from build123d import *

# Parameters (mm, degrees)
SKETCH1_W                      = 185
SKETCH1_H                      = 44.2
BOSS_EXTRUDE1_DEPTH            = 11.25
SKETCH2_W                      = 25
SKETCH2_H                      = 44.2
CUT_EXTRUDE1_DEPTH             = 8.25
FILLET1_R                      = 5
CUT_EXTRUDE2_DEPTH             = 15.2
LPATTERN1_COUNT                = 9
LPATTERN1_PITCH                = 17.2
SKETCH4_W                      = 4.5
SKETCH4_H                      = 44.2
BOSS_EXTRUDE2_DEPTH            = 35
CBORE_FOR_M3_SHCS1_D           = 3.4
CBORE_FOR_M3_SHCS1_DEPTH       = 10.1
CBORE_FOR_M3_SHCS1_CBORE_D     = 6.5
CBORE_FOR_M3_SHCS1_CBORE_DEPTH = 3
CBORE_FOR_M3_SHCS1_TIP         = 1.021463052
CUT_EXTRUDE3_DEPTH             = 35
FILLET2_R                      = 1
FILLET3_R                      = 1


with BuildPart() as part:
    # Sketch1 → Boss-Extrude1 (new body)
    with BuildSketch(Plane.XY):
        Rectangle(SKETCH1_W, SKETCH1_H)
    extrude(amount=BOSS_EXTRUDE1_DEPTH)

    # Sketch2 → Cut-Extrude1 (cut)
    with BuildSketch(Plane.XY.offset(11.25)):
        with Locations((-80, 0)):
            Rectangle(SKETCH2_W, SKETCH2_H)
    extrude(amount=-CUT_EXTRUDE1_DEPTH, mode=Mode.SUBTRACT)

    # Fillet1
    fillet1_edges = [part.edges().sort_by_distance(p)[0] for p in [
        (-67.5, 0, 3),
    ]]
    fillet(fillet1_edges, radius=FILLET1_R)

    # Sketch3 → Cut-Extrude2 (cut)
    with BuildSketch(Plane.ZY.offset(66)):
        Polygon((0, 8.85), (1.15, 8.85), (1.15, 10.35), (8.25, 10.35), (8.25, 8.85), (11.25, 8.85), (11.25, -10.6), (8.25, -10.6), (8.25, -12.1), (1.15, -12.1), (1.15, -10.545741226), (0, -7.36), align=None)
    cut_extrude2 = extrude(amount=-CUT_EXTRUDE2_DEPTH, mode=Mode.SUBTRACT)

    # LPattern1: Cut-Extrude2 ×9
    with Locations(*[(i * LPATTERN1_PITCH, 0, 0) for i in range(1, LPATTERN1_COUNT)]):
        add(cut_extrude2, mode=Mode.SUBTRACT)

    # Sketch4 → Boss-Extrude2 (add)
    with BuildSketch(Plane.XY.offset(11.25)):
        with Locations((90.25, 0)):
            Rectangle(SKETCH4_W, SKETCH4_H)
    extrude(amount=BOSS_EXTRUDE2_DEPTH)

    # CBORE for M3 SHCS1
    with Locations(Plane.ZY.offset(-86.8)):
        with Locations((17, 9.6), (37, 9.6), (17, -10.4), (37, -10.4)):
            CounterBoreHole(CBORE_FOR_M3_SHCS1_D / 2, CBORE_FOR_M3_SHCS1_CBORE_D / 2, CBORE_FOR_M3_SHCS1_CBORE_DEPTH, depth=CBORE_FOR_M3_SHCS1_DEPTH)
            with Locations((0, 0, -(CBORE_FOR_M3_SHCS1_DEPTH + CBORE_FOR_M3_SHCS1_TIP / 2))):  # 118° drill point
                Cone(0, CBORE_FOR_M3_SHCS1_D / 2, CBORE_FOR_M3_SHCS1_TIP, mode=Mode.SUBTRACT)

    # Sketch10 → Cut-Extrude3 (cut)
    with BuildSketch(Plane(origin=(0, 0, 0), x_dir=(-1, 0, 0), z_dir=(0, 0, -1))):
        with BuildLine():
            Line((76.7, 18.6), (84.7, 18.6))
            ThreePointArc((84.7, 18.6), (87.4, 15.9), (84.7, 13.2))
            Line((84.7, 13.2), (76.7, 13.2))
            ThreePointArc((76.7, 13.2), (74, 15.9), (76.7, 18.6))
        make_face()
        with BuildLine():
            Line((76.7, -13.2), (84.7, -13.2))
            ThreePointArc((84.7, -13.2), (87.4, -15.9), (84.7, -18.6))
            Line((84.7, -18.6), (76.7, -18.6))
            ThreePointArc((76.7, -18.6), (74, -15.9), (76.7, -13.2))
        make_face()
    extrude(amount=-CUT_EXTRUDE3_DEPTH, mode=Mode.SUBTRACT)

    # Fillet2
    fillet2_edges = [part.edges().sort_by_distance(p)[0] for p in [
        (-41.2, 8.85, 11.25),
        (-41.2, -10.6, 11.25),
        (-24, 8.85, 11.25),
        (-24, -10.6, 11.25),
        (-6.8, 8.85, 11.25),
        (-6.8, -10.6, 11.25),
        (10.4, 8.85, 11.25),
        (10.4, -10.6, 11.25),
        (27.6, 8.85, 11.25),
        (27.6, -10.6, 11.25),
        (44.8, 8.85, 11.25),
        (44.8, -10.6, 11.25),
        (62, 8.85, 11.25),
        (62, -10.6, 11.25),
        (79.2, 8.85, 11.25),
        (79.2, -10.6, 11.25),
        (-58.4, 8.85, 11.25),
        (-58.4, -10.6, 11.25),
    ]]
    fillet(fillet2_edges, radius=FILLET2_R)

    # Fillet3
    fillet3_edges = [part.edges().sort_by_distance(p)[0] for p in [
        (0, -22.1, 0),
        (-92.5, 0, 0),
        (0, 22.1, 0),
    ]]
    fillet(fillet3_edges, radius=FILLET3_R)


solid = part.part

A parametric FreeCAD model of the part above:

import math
import FreeCAD as App
import Part
import Sketcher
from FreeCAD import Vector
Q = App.Units.Quantity


def edges_at(feature, points):
    """Names of the edges that pass closest to the given points."""
    edges = feature.Shape.Edges
    near = lambda p: min(range(len(edges)), key=lambda i: edges[i].distToShape(Part.Vertex(*p))[0])
    return sorted({f"Edge{near(p) + 1}" for p in points})


def add_polygon(sketch, points):
    """Adds a closed chain of lines whose ends are joined by coincident constraints."""
    first, n = sketch.GeometryCount, len(points)
    for a, b in zip(points, points[1:] + points[:1]):
        sketch.addGeometry(Part.LineSegment(App.Vector(*a, 0), App.Vector(*b, 0)), False)
    for i in range(n):
        sketch.addConstraint(Sketcher.Constraint("Coincident", first + i, 2, first + (i + 1) % n, 1))

doc = App.newDocument("Part")
body = doc.addObject("PartDesign::Body", "Body")

sketch1 = doc.addObject("Sketcher::SketchObject", "Sketch")
body.addObject(sketch1)
sketch1.AttachmentSupport = (doc.XY_Plane, [""])
sketch1.MapMode = "FlatFace"
add_polygon(sketch1, [(-92, 22), (-92, -22), (92, -22), (92, 22)])
sketch1.addConstraint([
    Sketcher.Constraint("Vertical", 0),
    Sketcher.Constraint("Horizontal", 1),
    Sketcher.Constraint("Vertical", 2),
    Sketcher.Constraint("Horizontal", 3),
    Sketcher.Constraint("Symmetric", 0, 2, 2, 2, -1, 1),
    Sketcher.Constraint("DistanceX", 1, 1, 1, 2, Q("185 mm")),
    Sketcher.Constraint("DistanceY", 0, 2, 0, 1, Q("44.2 mm")),
])
pad1 = doc.addObject("PartDesign::Pad", "Pad")
body.addObject(pad1)
pad1.Profile = sketch1
pad1.Length = 11.25

sketch2 = doc.addObject("Sketcher::SketchObject", "Sketch001")
body.addObject(sketch2)
sketch2.AttachmentSupport = (doc.XY_Plane, [""])
sketch2.MapMode = "FlatFace"
sketch2.AttachmentOffset = App.Placement(Vector(0, 0, 11.25), App.Rotation())
add_polygon(sketch2, [(-92, 22), (-92, -22), (-68, -22), (-68, 22)])
sketch2.addConstraint([
    Sketcher.Constraint("Vertical", 0),
    Sketcher.Constraint("Horizontal", 1),
    Sketcher.Constraint("Vertical", 2),
    Sketcher.Constraint("Horizontal", 3),
    Sketcher.Constraint("DistanceX", 1, 1, 1, 2, Q("25 mm")),
    Sketcher.Constraint("DistanceY", 0, 2, 0, 1, Q("44.2 mm")),
    Sketcher.Constraint("DistanceX", 0, 2, -1, 1, Q("92.5 mm")),
    Sketcher.Constraint("DistanceY", 0, 2, -1, 1, Q("22.1 mm")),
])
pocket1 = doc.addObject("PartDesign::Pocket", "Pocket")
body.addObject(pocket1)
pocket1.Profile = sketch2
pocket1.Length = 8.25
doc.recompute()

fillet = doc.addObject("PartDesign::Fillet", "Fillet")
body.addObject(fillet)
fillet.Base = (pocket1, edges_at(pocket1, [(-67.5, 0, 3)]))
fillet.Radius = 5

sketch3 = doc.addObject("Sketcher::SketchObject", "Sketch002")
body.addObject(sketch3)
sketch3.AttachmentSupport = (doc.YZ_Plane, [""])
sketch3.MapMode = "FlatFace"
sketch3.AttachmentOffset = App.Placement(Vector(0, 0, -66), App.Rotation())
add_polygon(sketch3, [(8.8, 1.1), (8.8, 0), (-7.4, 0), (-10.5, 1.1), (-12.1, 1.1), (-12.1, 8.2), (-10.6, 8.2), (-10.6, 11.2), (8.8, 11.2), (8.8, 8.2), (10.3, 8.2), (10.3, 1.1)])
sketch3.addConstraint([
    Sketcher.Constraint("Vertical", 0),
    Sketcher.Constraint("Horizontal", 1),
    Sketcher.Constraint("Horizontal", 3),
    Sketcher.Constraint("Vertical", 4),
    Sketcher.Constraint("Horizontal", 5),
    Sketcher.Constraint("Vertical", 6),
    Sketcher.Constraint("Horizontal", 7),
    Sketcher.Constraint("Vertical", 8),
    Sketcher.Constraint("Horizontal", 9),
    Sketcher.Constraint("Vertical", 10),
    Sketcher.Constraint("Horizontal", 11),
    Sketcher.Constraint("PointOnObject", 0, 2, -1),
    Sketcher.Constraint("Horizontal", 5, 2, 8, 2),
    Sketcher.Constraint("Horizontal", 3, 2, 10, 2),
    Sketcher.Constraint("Vertical", 0, 2, 7, 2),
    Sketcher.Constraint("Equal", 5, 9),
    Sketcher.Constraint("DistanceY", 6, 1, 6, 2, Q("3 mm")),
    Sketcher.Constraint("DistanceX", 5, 1, 5, 2, Q("1.5 mm")),
    Sketcher.Constraint("DistanceY", 4, 1, 4, 2, Q("7.1 mm")),
    Sketcher.Constraint("DistanceX", 1, 2, 1, 1, Q("16.21 mm")),
    Sketcher.Constraint("DistanceX", 7, 1, 7, 2, Q("19.45 mm")),
    Sketcher.Constraint("DistanceY", 0, 2, 0, 1, Q("1.15 mm")),
    Sketcher.Constraint("DistanceX", 3, 2, -1, 1, Q("12.1 mm")),
    Sketcher.Constraint("DistanceX", 3, 2, 3, 1, Q("1.554259 mm")),
])
pocket2 = doc.addObject("PartDesign::Pocket", "Pocket001")
body.addObject(pocket2)
pocket2.Profile = sketch3
pocket2.Length = 15.2
pocket2.Reversed = True
doc.recompute()

linearpattern = doc.addObject("PartDesign::LinearPattern", "LinearPattern")
body.addObject(linearpattern)
linearpattern.Originals = [pocket2]
linearpattern.Direction = (doc.X_Axis, [""])
linearpattern.Mode = "offset"
linearpattern.Offset = 17.2
linearpattern.Occurrences = 9
body.Tip = linearpattern

sketch4 = doc.addObject("Sketcher::SketchObject", "Sketch003")
body.addObject(sketch4)
sketch4.AttachmentSupport = (doc.XY_Plane, [""])
sketch4.MapMode = "FlatFace"
sketch4.AttachmentOffset = App.Placement(Vector(0, 0, 11.25), App.Rotation())
add_polygon(sketch4, [(88, 22.1), (88, -22.1), (92.5, -22.1), (92.5, 22.1)])
sketch4.addConstraint([
    Sketcher.Constraint("Vertical", 0),
    Sketcher.Constraint("Horizontal", 1),
    Sketcher.Constraint("Vertical", 2),
    Sketcher.Constraint("Horizontal", 3),
    Sketcher.Constraint("DistanceX", 1, 1, 1, 2, Q("4.5 mm")),
    Sketcher.Constraint("DistanceY", 0, 2, 0, 1, Q("44.2 mm")),
    Sketcher.Constraint("DistanceX", -1, 1, 0, 2, Q("88 mm")),
    Sketcher.Constraint("DistanceY", 0, 2, -1, 1, Q("22.1 mm")),
])
pad2 = doc.addObject("PartDesign::Pad", "Pad001")
body.addObject(pad2)
pad2.Profile = sketch4
pad2.Length = 35

sketch5 = doc.addObject("Sketcher::SketchObject", "Sketch004")
body.addObject(sketch5)
sketch5.AttachmentSupport = (doc.YZ_Plane, [""])
sketch5.MapMode = "FlatFace"
sketch5.AttachmentOffset = App.Placement(Vector(0, 0, 86.8), App.Rotation())
sketch5.addGeometry([
    Part.Circle(Vector(9.6, 17, 0), Vector(0, 0, 1), 1.7),
    Part.Circle(Vector(9.6, 37, 0), Vector(0, 0, 1), 1.7),
    Part.Circle(Vector(-10.4, 17, 0), Vector(0, 0, 1), 1.7),
    Part.Circle(Vector(-10.4, 37, 0), Vector(0, 0, 1), 1.7),
], False)
sketch5.addConstraint([
    Sketcher.Constraint("Equal", 0, 1),
    Sketcher.Constraint("Equal", 1, 2),
    Sketcher.Constraint("Equal", 2, 3),
    Sketcher.Constraint("Horizontal", 0, 3, 2, 3),
    Sketcher.Constraint("Horizontal", 1, 3, 3, 3),
    Sketcher.Constraint("Vertical", 0, 3, 1, 3),
    Sketcher.Constraint("Vertical", 2, 3, 3, 3),
    Sketcher.Constraint("Diameter", 0, Q("3.4 mm")),
    Sketcher.Constraint("DistanceY", -1, 1, 0, 3, Q("17 mm")),
    Sketcher.Constraint("DistanceY", -1, 1, 1, 3, Q("37 mm")),
    Sketcher.Constraint("DistanceX", 2, 3, 0, 3, Q("20 mm")),
    Sketcher.Constraint("DistanceX", -1, 1, 0, 3, Q("9.6 mm")),
])
doc.recompute()
hole = doc.addObject("PartDesign::Hole", "Hole")
body.addObject(hole)
hole.Profile = sketch5
hole.ThreadType = "None"
hole.Diameter = 3.4
hole.DepthType = "Dimension"
hole.Depth = 10.1
hole.DrillPoint = "Angled"
hole.DrillPointAngle = 118
hole.HoleCutType = "Counterbore"
hole.HoleCutDiameter = 6.5
hole.HoleCutDepth = 3
hole.Reversed = True

sketch6 = doc.addObject("Sketcher::SketchObject", "Sketch005")
body.addObject(sketch6)
sketch6.AttachmentSupport = (doc.XY_Plane, [""])
sketch6.MapMode = "FlatFace"
sketch6.addGeometry([
    Part.LineSegment(Vector(-84.7, 18.6, 0), Vector(-76.7, 18.6, 0)),
    Part.ArcOfCircle(Part.Circle(Vector(-76.7, 15.9, 0), Vector(0, 0, 1), 2.7), math.radians(-90), math.radians(90)),
    Part.LineSegment(Vector(-76.7, 13.2, 0), Vector(-84.7, 13.2, 0)),
    Part.ArcOfCircle(Part.Circle(Vector(-84.7, 15.9, 0), Vector(0, 0, 1), 2.7), math.radians(90), math.radians(270)),
    Part.LineSegment(Vector(-84.7, -13.2, 0), Vector(-76.7, -13.2, 0)),
    Part.ArcOfCircle(Part.Circle(Vector(-76.7, -15.9, 0), Vector(0, 0, 1), 2.7), math.radians(-90), math.radians(90)),
    Part.LineSegment(Vector(-76.7, -18.6, 0), Vector(-84.7, -18.6, 0)),
    Part.ArcOfCircle(Part.Circle(Vector(-84.7, -15.9, 0), Vector(0, 0, 1), 2.7), math.radians(90), math.radians(270)),
], False)
sketch6.addConstraint([
    Sketcher.Constraint("Tangent", 0, 2, 1, 2),
    Sketcher.Constraint("Tangent", 1, 1, 2, 1),
    Sketcher.Constraint("Tangent", 2, 2, 3, 2),
    Sketcher.Constraint("Tangent", 3, 1, 0, 1),
    Sketcher.Constraint("Tangent", 4, 2, 5, 2),
    Sketcher.Constraint("Tangent", 5, 1, 6, 1),
    Sketcher.Constraint("Tangent", 6, 2, 7, 2),
    Sketcher.Constraint("Tangent", 7, 1, 4, 1),
    Sketcher.Constraint("Horizontal", 0),
    Sketcher.Constraint("Horizontal", 2),
    Sketcher.Constraint("Horizontal", 4),
    Sketcher.Constraint("Horizontal", 6),
    Sketcher.Constraint("Equal", 3, 5),
    Sketcher.Constraint("Symmetric", 1, 3, 5, 3, -1),
    Sketcher.Constraint("Vertical", 3, 3, 7, 3),
    Sketcher.Constraint("Radius", 1, Q("2.7 mm")),
    Sketcher.Constraint("DistanceX", 0, 1, 0, 2, Q("8 mm")),
    Sketcher.Constraint("DistanceX", 1, 3, -1, 1, Q("76.7 mm")),
    Sketcher.Constraint("DistanceY", -1, 1, 1, 3, Q("15.9 mm")),
])
pocket3 = doc.addObject("PartDesign::Pocket", "Pocket002")
body.addObject(pocket3)
pocket3.Profile = sketch6
pocket3.Length = 35
pocket3.Reversed = True
doc.recompute()

fillet2 = doc.addObject("PartDesign::Fillet", "Fillet001")
body.addObject(fillet2)
fillet2.Base = (pocket3, edges_at(pocket3, [
    (-41.2, 8.85, 11.25),
    (-41.2, -10.6, 11.25),
    (-24, 8.85, 11.25),
    (-24, -10.6, 11.25),
    (-6.8, 8.85, 11.25),
    (-6.8, -10.6, 11.25),
    (10.4, 8.85, 11.25),
    (10.4, -10.6, 11.25),
    (27.6, 8.85, 11.25),
    (27.6, -10.6, 11.25),
    (44.8, 8.85, 11.25),
    (44.8, -10.6, 11.25),
    (62, 8.85, 11.25),
    (62, -10.6, 11.25),
    (79.2, 8.85, 11.25),
    (79.2, -10.6, 11.25),
    (-58.4, 8.85, 11.25),
    (-58.4, -10.6, 11.25),
]))
fillet2.Radius = 1
doc.recompute()

fillet3 = doc.addObject("PartDesign::Fillet", "Fillet002")
body.addObject(fillet3)
fillet3.Base = (fillet2, edges_at(fillet2, [(0, -22.1, 0), (-92.5, 0, 0), (0, 22.1, 0)]))
fillet3.Radius = 1

doc.recompute()
